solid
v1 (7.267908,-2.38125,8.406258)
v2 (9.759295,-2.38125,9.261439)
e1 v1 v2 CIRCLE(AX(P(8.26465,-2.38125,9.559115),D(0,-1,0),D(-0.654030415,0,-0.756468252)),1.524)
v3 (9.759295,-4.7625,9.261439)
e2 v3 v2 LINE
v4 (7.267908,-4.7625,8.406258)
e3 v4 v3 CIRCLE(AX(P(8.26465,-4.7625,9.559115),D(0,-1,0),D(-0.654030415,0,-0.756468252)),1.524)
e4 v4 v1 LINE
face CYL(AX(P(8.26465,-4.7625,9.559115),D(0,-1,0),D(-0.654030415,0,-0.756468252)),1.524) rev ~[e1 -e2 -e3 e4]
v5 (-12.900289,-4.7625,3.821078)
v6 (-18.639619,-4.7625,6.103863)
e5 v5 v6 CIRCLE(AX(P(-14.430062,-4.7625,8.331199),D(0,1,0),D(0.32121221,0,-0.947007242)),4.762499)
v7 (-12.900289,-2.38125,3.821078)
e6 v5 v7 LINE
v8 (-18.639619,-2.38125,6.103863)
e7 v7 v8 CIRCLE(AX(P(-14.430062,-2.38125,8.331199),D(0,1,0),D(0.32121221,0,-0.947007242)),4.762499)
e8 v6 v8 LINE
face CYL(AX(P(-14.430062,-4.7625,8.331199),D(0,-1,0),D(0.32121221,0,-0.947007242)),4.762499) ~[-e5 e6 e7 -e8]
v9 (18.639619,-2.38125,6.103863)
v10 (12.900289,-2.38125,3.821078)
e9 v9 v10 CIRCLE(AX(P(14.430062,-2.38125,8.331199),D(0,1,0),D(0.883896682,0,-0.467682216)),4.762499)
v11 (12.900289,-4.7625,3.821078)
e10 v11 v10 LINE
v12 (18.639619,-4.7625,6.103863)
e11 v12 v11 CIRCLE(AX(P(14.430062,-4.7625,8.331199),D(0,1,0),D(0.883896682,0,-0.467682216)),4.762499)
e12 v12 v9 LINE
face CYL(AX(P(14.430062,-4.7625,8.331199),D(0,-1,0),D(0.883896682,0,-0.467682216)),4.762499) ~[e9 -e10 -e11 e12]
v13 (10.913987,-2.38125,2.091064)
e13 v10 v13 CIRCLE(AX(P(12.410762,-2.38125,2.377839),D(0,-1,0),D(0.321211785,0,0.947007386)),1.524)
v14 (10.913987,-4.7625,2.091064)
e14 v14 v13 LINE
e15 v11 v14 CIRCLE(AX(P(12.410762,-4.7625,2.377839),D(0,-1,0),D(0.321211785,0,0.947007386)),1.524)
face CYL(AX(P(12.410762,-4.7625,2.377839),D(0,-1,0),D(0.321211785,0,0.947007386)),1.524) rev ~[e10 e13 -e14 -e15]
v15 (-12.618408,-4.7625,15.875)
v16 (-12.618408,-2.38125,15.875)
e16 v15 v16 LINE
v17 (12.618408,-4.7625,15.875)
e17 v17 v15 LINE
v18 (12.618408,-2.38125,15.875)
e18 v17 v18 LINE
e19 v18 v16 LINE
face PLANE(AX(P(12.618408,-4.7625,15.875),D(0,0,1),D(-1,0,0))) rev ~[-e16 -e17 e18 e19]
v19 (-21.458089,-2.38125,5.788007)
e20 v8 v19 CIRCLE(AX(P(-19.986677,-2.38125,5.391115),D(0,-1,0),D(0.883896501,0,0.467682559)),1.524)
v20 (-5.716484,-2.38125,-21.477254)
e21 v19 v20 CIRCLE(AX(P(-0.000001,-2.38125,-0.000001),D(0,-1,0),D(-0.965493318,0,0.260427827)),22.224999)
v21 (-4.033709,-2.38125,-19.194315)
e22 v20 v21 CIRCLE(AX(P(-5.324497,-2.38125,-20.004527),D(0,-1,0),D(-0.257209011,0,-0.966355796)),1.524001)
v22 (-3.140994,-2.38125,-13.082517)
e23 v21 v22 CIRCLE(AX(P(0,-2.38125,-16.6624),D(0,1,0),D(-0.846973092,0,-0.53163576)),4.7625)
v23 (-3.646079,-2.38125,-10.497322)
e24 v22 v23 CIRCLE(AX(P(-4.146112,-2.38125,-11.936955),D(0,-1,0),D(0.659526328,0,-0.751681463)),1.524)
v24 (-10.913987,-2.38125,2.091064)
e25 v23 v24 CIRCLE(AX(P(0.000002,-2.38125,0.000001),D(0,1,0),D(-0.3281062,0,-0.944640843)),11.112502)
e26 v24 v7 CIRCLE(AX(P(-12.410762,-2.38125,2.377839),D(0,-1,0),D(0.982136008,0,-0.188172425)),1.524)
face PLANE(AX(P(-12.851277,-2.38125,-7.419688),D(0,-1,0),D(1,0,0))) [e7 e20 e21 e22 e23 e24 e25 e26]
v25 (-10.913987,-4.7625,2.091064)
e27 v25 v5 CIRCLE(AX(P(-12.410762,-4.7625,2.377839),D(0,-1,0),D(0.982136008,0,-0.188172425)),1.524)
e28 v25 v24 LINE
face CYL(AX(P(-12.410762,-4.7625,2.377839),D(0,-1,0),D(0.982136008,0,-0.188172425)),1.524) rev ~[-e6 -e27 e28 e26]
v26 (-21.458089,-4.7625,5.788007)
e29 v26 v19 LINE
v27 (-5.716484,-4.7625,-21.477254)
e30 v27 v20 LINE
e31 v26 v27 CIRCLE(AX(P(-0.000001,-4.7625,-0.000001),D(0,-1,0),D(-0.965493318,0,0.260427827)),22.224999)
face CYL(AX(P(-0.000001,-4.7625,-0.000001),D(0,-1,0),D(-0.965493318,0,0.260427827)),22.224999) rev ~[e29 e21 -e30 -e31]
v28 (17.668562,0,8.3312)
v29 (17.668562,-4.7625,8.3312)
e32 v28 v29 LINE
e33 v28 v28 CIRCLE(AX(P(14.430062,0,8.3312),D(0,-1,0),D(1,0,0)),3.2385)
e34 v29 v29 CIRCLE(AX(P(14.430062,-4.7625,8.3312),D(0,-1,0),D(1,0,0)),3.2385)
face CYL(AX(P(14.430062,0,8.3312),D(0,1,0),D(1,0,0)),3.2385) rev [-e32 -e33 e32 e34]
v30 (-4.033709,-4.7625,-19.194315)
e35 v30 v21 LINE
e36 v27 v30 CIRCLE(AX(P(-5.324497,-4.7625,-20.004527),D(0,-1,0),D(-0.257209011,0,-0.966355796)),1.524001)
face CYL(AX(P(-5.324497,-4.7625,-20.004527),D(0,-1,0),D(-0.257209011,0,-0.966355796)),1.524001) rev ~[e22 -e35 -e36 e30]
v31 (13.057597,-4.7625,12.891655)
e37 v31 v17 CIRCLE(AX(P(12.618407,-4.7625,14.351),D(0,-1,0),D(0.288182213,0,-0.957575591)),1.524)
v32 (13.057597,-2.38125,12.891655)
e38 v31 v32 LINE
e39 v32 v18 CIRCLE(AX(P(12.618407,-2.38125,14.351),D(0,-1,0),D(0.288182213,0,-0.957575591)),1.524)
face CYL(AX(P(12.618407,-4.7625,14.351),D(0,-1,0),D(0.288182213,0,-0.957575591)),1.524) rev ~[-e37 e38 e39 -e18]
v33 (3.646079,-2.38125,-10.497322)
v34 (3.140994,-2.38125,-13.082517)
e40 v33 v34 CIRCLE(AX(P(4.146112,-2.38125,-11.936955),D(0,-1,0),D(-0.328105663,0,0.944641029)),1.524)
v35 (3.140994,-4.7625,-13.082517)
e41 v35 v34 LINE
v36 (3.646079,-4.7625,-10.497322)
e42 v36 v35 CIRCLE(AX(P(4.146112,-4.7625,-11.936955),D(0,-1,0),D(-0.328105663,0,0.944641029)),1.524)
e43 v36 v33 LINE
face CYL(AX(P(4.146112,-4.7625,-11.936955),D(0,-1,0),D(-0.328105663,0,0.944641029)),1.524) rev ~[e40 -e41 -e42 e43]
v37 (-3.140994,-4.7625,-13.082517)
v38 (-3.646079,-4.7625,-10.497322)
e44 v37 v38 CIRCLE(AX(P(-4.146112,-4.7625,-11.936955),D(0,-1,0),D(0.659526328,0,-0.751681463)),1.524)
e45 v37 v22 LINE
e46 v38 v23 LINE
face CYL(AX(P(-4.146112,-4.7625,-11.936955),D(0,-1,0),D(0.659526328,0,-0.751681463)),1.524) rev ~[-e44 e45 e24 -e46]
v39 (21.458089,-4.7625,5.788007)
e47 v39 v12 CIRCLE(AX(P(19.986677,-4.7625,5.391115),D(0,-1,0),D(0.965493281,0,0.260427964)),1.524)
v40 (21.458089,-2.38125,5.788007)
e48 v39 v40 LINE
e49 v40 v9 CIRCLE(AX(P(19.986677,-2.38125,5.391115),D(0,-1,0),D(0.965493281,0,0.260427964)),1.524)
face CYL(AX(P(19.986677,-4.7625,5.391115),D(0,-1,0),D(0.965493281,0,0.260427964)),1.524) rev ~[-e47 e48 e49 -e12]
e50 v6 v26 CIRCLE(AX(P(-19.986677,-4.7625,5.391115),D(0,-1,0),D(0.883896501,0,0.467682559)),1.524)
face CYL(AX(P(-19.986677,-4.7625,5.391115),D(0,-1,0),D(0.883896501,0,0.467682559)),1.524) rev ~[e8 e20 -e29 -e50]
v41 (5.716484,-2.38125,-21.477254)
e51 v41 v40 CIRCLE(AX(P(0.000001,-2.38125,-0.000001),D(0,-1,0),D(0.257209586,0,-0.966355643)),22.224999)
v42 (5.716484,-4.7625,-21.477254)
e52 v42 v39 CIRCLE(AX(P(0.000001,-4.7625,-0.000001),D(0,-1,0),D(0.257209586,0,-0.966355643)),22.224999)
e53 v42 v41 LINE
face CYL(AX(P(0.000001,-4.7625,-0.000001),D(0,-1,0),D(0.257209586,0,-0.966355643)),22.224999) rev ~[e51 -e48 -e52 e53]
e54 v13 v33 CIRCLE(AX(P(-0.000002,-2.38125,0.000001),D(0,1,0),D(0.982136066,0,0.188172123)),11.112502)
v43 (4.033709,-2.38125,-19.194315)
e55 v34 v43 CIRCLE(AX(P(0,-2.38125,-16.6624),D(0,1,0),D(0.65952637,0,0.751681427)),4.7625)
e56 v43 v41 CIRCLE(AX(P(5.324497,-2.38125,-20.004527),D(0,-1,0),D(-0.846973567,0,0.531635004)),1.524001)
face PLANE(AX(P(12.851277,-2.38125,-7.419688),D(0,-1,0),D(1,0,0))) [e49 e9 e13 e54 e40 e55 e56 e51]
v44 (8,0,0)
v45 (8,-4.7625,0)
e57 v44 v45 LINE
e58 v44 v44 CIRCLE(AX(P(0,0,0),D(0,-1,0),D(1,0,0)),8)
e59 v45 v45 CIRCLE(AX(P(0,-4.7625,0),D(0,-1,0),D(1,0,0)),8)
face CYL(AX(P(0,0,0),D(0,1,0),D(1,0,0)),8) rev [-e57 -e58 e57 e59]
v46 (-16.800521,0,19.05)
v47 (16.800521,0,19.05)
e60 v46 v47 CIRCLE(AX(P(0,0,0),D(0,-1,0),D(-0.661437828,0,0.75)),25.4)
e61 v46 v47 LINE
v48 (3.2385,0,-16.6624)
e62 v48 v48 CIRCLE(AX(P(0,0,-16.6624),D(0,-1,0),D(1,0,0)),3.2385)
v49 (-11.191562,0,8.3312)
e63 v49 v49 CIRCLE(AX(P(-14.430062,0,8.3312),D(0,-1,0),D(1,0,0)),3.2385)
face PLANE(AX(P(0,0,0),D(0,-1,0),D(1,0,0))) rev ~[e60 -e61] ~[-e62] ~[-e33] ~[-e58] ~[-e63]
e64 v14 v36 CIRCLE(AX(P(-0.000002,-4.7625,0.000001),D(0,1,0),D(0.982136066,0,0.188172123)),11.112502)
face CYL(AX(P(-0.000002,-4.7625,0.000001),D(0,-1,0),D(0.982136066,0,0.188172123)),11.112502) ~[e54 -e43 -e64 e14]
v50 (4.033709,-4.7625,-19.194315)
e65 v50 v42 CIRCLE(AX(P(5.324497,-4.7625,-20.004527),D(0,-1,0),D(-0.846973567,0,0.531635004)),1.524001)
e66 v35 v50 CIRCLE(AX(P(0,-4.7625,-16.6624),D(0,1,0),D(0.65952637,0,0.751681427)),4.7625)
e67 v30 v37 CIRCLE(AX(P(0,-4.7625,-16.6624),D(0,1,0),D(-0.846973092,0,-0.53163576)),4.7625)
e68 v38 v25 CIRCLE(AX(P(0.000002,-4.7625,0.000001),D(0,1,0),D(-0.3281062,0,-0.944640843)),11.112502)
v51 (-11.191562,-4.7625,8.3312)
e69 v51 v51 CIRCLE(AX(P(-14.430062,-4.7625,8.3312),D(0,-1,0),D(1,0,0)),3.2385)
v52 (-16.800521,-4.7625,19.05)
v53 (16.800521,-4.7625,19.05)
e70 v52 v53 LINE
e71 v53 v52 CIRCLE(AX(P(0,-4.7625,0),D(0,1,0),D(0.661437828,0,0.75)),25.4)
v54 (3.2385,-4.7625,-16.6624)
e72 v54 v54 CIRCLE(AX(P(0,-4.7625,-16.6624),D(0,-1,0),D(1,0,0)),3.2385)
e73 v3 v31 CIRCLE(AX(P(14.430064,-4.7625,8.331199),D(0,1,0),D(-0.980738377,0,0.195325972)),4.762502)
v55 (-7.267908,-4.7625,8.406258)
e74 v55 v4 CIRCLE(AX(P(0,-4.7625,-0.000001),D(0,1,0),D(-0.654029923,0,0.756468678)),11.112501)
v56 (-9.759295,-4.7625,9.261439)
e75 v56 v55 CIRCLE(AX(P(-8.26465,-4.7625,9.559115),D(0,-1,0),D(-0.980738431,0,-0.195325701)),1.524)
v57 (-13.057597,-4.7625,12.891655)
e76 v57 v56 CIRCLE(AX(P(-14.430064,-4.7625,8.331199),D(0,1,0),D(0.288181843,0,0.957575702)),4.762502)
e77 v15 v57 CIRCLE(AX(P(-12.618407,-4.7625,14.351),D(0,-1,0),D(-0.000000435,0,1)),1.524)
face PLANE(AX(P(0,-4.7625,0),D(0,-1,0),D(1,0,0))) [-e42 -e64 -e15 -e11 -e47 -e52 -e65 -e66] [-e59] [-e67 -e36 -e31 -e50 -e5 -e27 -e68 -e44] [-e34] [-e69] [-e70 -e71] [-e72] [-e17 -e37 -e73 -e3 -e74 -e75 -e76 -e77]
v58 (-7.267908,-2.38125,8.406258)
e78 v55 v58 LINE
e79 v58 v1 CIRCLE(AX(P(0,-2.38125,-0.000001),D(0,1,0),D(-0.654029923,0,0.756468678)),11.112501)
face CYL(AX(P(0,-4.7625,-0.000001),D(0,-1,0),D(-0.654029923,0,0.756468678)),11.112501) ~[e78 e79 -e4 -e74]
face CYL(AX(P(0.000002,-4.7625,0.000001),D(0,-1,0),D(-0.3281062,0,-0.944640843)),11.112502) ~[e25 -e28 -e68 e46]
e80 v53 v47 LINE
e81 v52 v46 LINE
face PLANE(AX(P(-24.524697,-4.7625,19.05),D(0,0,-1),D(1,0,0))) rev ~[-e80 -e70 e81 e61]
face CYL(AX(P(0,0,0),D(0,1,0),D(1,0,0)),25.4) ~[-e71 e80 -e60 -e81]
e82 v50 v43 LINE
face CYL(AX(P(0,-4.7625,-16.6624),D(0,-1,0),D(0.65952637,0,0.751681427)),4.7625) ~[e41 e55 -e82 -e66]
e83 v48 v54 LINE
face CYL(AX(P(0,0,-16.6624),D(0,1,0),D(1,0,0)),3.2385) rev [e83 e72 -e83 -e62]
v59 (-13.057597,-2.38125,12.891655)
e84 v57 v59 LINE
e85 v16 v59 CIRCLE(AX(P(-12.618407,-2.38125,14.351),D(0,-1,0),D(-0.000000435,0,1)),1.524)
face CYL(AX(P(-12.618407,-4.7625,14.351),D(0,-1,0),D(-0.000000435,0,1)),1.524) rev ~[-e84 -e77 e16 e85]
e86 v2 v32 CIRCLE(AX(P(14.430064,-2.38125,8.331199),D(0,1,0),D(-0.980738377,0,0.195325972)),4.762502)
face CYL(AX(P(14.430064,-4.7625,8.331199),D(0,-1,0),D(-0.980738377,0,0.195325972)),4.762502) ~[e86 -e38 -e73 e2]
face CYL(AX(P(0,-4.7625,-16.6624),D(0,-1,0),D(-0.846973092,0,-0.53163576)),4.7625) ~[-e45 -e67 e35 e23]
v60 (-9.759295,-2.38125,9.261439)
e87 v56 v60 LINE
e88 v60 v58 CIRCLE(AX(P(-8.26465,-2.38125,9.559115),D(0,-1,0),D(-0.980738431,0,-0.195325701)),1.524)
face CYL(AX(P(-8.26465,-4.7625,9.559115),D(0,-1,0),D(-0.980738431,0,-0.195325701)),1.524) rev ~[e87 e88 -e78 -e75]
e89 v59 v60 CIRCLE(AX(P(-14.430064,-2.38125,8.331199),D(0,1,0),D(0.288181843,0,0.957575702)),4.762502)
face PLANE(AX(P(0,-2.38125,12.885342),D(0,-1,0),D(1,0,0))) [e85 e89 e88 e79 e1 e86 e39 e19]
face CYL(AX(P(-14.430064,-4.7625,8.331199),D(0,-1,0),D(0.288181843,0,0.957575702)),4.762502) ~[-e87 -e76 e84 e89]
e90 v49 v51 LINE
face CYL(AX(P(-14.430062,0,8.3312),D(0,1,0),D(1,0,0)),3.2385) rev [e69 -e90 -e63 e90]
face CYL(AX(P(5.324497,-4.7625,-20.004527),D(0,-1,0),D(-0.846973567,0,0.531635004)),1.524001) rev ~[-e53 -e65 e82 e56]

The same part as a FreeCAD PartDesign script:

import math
import FreeCAD as App
import Part
import Sketcher
Q = App.Units.Quantity

doc = App.newDocument("Part")
body = doc.addObject("PartDesign::Body", "Body")

# Sketch on XZ plane
sketch1 = body.newObject("Sketcher::SketchObject", "Sketch")
sketch1.AttachmentSupport = (doc.getObject("XZ_Plane"), [""])
sketch1.MapMode = "FlatFace"
sketch1.addGeometry([
    Part.Circle(App.Vector(0, 0, 0), App.Vector(0, 0, 1), 25.4),  # 0
    Part.Circle(App.Vector(0, -16.6624, 0), App.Vector(0, 0, 1), 3.2385),  # 1
    Part.Circle(App.Vector(-14.430062, 8.3312, 0), App.Vector(0, 0, 1), 3.2385),  # 2
    Part.Circle(App.Vector(0, 0, 0), App.Vector(0, 0, 1), 8),  # 3
    Part.Circle(App.Vector(14.430062, 8.3312, 0), App.Vector(0, 0, 1), 3.2385),  # 4
], False)
sketch1.addConstraint([
    Sketcher.Constraint("Coincident", 0, 3, -1, 1),
    Sketcher.Constraint("Coincident", 3, 3, -1, 1),
    Sketcher.Constraint("Equal", 1, 2),
    Sketcher.Constraint("Equal", 2, 4),
    Sketcher.Constraint("Symmetric", 2, 3, 4, 3, -2),
    Sketcher.Constraint("PointOnObject", 1, 3, -2),
    Sketcher.Constraint("Diameter", 0, Q("2 in")),
    Sketcher.Constraint("Diameter", 1, Q("0.255 in")),
    Sketcher.Constraint("Diameter", 3, 16.0),
    Sketcher.Constraint("DistanceY", 1, 3, -1, 1, Q("0.656 in")),
    Sketcher.Constraint("DistanceY", -1, 1, 2, 3, Q("0.328 in")),
    Sketcher.Constraint("DistanceX", 2, 3, -1, 1, 14.430062),
])
pad1 = body.newObject("PartDesign::Pad", "Pad")
pad1.Profile = sketch1
pad1.Length = Q("0.1875 in")

# Sketch on XZ plane
sketch2 = body.newObject("Sketcher::SketchObject", "Sketch001")
sketch2.AttachmentSupport = (doc.getObject("XZ_Plane"), [""])
sketch2.MapMode = "FlatFace"
sketch2.AttachmentOffset = App.Placement(App.Vector(0, 0, 0.1875 * 25.4), App.Rotation())
sketch2.addGeometry([
    Part.LineSegment(App.Vector(-24.524697, 33.39433, 0), App.Vector(-24.524697, 19.05, 0)),
    Part.LineSegment(App.Vector(-24.524697, 19.05, 0), App.Vector(26.036517, 19.05, 0)),
    Part.LineSegment(App.Vector(26.036517, 19.05, 0), App.Vector(26.036517, 33.39433, 0)),
    Part.LineSegment(App.Vector(26.036517, 33.39433, 0), App.Vector(-24.524697, 33.39433, 0)),
], False)
sketch2.addConstraint([
    Sketcher.Constraint("Coincident", 0, 2, 1, 1),
    Sketcher.Constraint("Coincident", 1, 2, 2, 1),
    Sketcher.Constraint("Coincident", 2, 2, 3, 1),
    Sketcher.Constraint("Coincident", 3, 2, 0, 1),
    Sketcher.Constraint("Vertical", 0),
    Sketcher.Constraint("Horizontal", 1),
    Sketcher.Constraint("Vertical", 2),
    Sketcher.Constraint("Horizontal", 3),
    Sketcher.Constraint("DistanceY", -1, 1, 0, 2, Q("0.75 in")),
    Sketcher.Constraint("DistanceY", 0, 2, 0, 1, 14.34433),
    Sketcher.Constraint("DistanceX", 1, 1, 1, 2, 50.561215),
    Sketcher.Constraint("DistanceX", 0, 2, -1, 1, 24.524697),
])
pocket1 = body.newObject("PartDesign::Pocket", "Pocket")
pocket1.Profile = sketch2
pocket1.Length = Q("1 in")

# Sketch on XZ plane
sketch3 = body.newObject("Sketcher::SketchObject", "Sketch002")
sketch3.AttachmentSupport = (doc.getObject("XZ_Plane"), [""])
sketch3.MapMode = "FlatFace"
sketch3.AttachmentOffset = App.Placement(App.Vector(0, 0, 0.1875 * 25.4), App.Rotation())
sketch3.addGeometry([
    Part.ArcOfCircle(Part.Circle(App.Vector(0.000002, 0.000001, 0), App.Vector(0, 0, 1), 11.112502), math.radians(169.153869), math.radians(250.84613)),  # 0
    Part.ArcOfCircle(Part.Circle(App.Vector(-12.410762, 2.377839, 0), App.Vector(0, 0, 1), 1.524), math.radians(-10.846148), math.radians(108.736224)),  # 1
    Part.ArcOfCircle(Part.Circle(App.Vector(-14.430062, 8.331199, 0), App.Vector(0, 0, 1), 4.762499), math.radians(-152.116051), math.radians(-71.26375)),  # 2
    Part.ArcOfCircle(Part.Circle(App.Vector(-19.986677, 5.391115, 0), App.Vector(0, 0, 1), 1.524), math.radians(27.883971), math.radians(164.904542)),  # 3
    Part.ArcOfCircle(Part.Circle(App.Vector(-0.000001, -0.000001, 0), App.Vector(0, 0, 1), 22.224999), math.radians(164.904551), math.radians(255.095447)),  # 4
    Part.ArcOfCircle(Part.Circle(App.Vector(-5.324497, -20.004527, 0), App.Vector(0, 0, 1), 1.524001), math.radians(-104.904519), math.radians(32.115992)),  # 5
    Part.ArcOfCircle(Part.Circle(App.Vector(0, -16.6624, 0), App.Vector(0, 0, 1), 4.7625), math.radians(131.263761), math.radians(212.116043)),  # 6
    Part.ArcOfCircle(Part.Circle(App.Vector(-4.146112, -11.936955, 0), App.Vector(0, 0, 1), 1.524), math.radians(-48.736242), math.radians(70.846163)),  # 7
    Part.ArcOfCircle(Part.Circle(App.Vector(0, -0.000001, 0), App.Vector(0, 0, 1), 11.112501), math.radians(49.153866), math.radians(130.846134)),  # 8
    Part.ArcOfCircle(Part.Circle(App.Vector(8.26465, 9.559115, 0), App.Vector(0, 0, 1), 1.524), math.radians(-130.846172), math.radians(-11.263751)),  # 9
    Part.ArcOfCircle(Part.Circle(App.Vector(14.430064, 8.331199, 0), App.Vector(0, 0, 1), 4.762502), math.radians(106.749137), math.radians(168.736233)),  # 10
    Part.ArcOfCircle(Part.Circle(App.Vector(12.618407, 14.351, 0), App.Vector(0, 0, 1), 1.524), math.radians(-73.250841), math.radians(89.999975)),  # 11
    Part.LineSegment(App.Vector(12.618408, 15.875, 0), App.Vector(-12.618408, 15.875, 0)),  # 12
    Part.ArcOfCircle(Part.Circle(App.Vector(-12.618407, 14.351, 0), App.Vector(0, 0, 1), 1.524), math.radians(90.000025), math.radians(253.250841)),  # 13
    Part.ArcOfCircle(Part.Circle(App.Vector(-14.430064, 8.331199, 0), App.Vector(0, 0, 1), 4.762502), math.radians(11.263767), math.radians(73.250863)),  # 14
    Part.ArcOfCircle(Part.Circle(App.Vector(-8.26465, 9.559115, 0), App.Vector(0, 0, 1), 1.524), math.radians(-168.736249), math.radians(-49.153828)),  # 15
    Part.ArcOfCircle(Part.Circle(App.Vector(-0.000002, 0.000001, 0), App.Vector(0, 0, 1), 11.112502), math.radians(-70.84613), math.radians(10.846131)),  # 16
    Part.ArcOfCircle(Part.Circle(App.Vector(4.146112, -11.936955, 0), App.Vector(0, 0, 1), 1.524), math.radians(109.153837), math.radians(228.736242)),  # 17
    Part.ArcOfCircle(Part.Circle(App.Vector(0, -16.6624, 0), App.Vector(0, 0, 1), 4.7625), math.radians(-32.116043), math.radians(48.736239)),  # 18
    Part.ArcOfCircle(Part.Circle(App.Vector(5.324497, -20.004527, 0), App.Vector(0, 0, 1), 1.524001), math.radians(147.884008), math.radians(284.904519)),  # 19
    Part.ArcOfCircle(Part.Circle(App.Vector(0.000001, -0.000001, 0), App.Vector(0, 0, 1), 22.224999), math.radians(-75.095447), math.radians(15.095449)),  # 20
    Part.ArcOfCircle(Part.Circle(App.Vector(19.986677, 5.391115, 0), App.Vector(0, 0, 1), 1.524), math.radians(15.095458), math.radians(152.116029)),  # 21
    Part.ArcOfCircle(Part.Circle(App.Vector(14.430062, 8.331199, 0), App.Vector(0, 0, 1), 4.762499), math.radians(-108.73625), math.radians(-27.883949)),  # 22
    Part.ArcOfCircle(Part.Circle(App.Vector(12.410762, 2.377839, 0), App.Vector(0, 0, 1), 1.524), math.radians(71.263776), math.radians(190.846148)),  # 23
], False)
sketch3.addConstraint([
    Sketcher.Constraint("Tangent", 0, 1, 1, 1),
    Sketcher.Constraint("Tangent", 1, 2, 2, 2),
    Sketcher.Constraint("Tangent", 2, 1, 3, 1),
    Sketcher.Constraint("Tangent", 3, 2, 4, 1),
    Sketcher.Constraint("Tangent", 4, 2, 5, 1),
    Sketcher.Constraint("Tangent", 5, 2, 6, 2),
    Sketcher.Constraint("Tangent", 6, 1, 7, 1),
    Sketcher.Constraint("Tangent", 7, 2, 0, 2),
    Sketcher.Constraint("Tangent", 8, 1, 9, 1),
    Sketcher.Constraint("Tangent", 9, 2, 10, 2),
    Sketcher.Constraint("Tangent", 10, 1, 11, 1),
    Sketcher.Constraint("Tangent", 11, 2, 12, 1),
    Sketcher.Constraint("Tangent", 12, 2, 13, 1),
    Sketcher.Constraint("Tangent", 13, 2, 14, 2),
    Sketcher.Constraint("Tangent", 14, 1, 15, 1),
    Sketcher.Constraint("Tangent", 15, 2, 8, 2),
    Sketcher.Constraint("Tangent", 16, 1, 17, 1),
    Sketcher.Constraint("Tangent", 17, 2, 18, 2),
    Sketcher.Constraint("Tangent", 18, 1, 19, 1),
    Sketcher.Constraint("Tangent", 19, 2, 20, 1),
    Sketcher.Constraint("Tangent", 20, 2, 21, 1),
    Sketcher.Constraint("Tangent", 21, 2, 22, 2),
    Sketcher.Constraint("Tangent", 22, 1, 23, 1),
    Sketcher.Constraint("Tangent", 23, 2, 16, 2),
    Sketcher.Constraint("Horizontal", 12),
    Sketcher.Constraint("Coincident", 0, 3, -1, 1),
    Sketcher.Constraint("Coincident", 4, 3, -1, 1),
    Sketcher.Constraint("Coincident", 8, 3, -1, 1),
    Sketcher.Constraint("Coincident", 16, 3, -1, 1),
    Sketcher.Constraint("Coincident", 20, 3, -1, 1),
    Sketcher.Constraint("Coincident", 14, 3, 2, 3),
    Sketcher.Constraint("Coincident", 18, 3, 6, 3),
    Sketcher.Constraint("Coincident", 22, 3, 10, 3),
    Sketcher.Constraint("Equal", 1, 3),
    Sketcher.Constraint("Equal", 3, 5),
    Sketcher.Constraint("Equal", 2, 6),
    Sketcher.Constraint("Equal", 5, 7),
    Sketcher.Constraint("Equal", 0, 8),
    Sketcher.Constraint("Equal", 7, 9),
    Sketcher.Constraint("Equal", 9, 11),
    Sketcher.Constraint("Equal", 11, 13),
    Sketcher.Constraint("Equal", 10, 14),
    Sketcher.Constraint("Equal", 13, 15),
    Sketcher.Constraint("Equal", 8, 16),
    Sketcher.Constraint("Equal", 15, 17),
    Sketcher.Constraint("Equal", 6, 18),
    Sketcher.Constraint("Equal", 17, 19),
    Sketcher.Constraint("Equal", 4, 20),
    Sketcher.Constraint("Equal", 19, 21),
    Sketcher.Constraint("Equal", 18, 22),
    Sketcher.Constraint("Equal", 21, 23),
    Sketcher.Constraint("Symmetric", 2, 3, 10, 3, -2),
    Sketcher.Constraint("PointOnObject", 6, 3, -2),
    Sketcher.Constraint("Radius", 1, Q("0.06 in")),
    Sketcher.Constraint("Radius", 0, Q("0.4375001 in")),
    Sketcher.Constraint("Radius", 2, Q("0.1875 in")),
    Sketcher.Constraint("Radius", 4, Q("0.8749999 in")),
    Sketcher.Constraint("Radius", 10, Q("0.1875001 in")),
    Sketcher.Constraint("DistanceY", -1, 1, 2, 3, Q("0.328 in")),
    Sketcher.Constraint("DistanceY", 6, 3, -1, 1, Q("0.656 in")),
    Sketcher.Constraint("DistanceY", -1, 1, 11, 3, Q("0.565 in")),
    Sketcher.Constraint("DistanceX", 2, 3, 1, 3, Q("0.0795 in")),
])
pocket2 = body.newObject("PartDesign::Pocket", "Pocket001")
pocket2.Profile = sketch3
pocket2.Length = Q("0.09375 in")

doc.recompute()
